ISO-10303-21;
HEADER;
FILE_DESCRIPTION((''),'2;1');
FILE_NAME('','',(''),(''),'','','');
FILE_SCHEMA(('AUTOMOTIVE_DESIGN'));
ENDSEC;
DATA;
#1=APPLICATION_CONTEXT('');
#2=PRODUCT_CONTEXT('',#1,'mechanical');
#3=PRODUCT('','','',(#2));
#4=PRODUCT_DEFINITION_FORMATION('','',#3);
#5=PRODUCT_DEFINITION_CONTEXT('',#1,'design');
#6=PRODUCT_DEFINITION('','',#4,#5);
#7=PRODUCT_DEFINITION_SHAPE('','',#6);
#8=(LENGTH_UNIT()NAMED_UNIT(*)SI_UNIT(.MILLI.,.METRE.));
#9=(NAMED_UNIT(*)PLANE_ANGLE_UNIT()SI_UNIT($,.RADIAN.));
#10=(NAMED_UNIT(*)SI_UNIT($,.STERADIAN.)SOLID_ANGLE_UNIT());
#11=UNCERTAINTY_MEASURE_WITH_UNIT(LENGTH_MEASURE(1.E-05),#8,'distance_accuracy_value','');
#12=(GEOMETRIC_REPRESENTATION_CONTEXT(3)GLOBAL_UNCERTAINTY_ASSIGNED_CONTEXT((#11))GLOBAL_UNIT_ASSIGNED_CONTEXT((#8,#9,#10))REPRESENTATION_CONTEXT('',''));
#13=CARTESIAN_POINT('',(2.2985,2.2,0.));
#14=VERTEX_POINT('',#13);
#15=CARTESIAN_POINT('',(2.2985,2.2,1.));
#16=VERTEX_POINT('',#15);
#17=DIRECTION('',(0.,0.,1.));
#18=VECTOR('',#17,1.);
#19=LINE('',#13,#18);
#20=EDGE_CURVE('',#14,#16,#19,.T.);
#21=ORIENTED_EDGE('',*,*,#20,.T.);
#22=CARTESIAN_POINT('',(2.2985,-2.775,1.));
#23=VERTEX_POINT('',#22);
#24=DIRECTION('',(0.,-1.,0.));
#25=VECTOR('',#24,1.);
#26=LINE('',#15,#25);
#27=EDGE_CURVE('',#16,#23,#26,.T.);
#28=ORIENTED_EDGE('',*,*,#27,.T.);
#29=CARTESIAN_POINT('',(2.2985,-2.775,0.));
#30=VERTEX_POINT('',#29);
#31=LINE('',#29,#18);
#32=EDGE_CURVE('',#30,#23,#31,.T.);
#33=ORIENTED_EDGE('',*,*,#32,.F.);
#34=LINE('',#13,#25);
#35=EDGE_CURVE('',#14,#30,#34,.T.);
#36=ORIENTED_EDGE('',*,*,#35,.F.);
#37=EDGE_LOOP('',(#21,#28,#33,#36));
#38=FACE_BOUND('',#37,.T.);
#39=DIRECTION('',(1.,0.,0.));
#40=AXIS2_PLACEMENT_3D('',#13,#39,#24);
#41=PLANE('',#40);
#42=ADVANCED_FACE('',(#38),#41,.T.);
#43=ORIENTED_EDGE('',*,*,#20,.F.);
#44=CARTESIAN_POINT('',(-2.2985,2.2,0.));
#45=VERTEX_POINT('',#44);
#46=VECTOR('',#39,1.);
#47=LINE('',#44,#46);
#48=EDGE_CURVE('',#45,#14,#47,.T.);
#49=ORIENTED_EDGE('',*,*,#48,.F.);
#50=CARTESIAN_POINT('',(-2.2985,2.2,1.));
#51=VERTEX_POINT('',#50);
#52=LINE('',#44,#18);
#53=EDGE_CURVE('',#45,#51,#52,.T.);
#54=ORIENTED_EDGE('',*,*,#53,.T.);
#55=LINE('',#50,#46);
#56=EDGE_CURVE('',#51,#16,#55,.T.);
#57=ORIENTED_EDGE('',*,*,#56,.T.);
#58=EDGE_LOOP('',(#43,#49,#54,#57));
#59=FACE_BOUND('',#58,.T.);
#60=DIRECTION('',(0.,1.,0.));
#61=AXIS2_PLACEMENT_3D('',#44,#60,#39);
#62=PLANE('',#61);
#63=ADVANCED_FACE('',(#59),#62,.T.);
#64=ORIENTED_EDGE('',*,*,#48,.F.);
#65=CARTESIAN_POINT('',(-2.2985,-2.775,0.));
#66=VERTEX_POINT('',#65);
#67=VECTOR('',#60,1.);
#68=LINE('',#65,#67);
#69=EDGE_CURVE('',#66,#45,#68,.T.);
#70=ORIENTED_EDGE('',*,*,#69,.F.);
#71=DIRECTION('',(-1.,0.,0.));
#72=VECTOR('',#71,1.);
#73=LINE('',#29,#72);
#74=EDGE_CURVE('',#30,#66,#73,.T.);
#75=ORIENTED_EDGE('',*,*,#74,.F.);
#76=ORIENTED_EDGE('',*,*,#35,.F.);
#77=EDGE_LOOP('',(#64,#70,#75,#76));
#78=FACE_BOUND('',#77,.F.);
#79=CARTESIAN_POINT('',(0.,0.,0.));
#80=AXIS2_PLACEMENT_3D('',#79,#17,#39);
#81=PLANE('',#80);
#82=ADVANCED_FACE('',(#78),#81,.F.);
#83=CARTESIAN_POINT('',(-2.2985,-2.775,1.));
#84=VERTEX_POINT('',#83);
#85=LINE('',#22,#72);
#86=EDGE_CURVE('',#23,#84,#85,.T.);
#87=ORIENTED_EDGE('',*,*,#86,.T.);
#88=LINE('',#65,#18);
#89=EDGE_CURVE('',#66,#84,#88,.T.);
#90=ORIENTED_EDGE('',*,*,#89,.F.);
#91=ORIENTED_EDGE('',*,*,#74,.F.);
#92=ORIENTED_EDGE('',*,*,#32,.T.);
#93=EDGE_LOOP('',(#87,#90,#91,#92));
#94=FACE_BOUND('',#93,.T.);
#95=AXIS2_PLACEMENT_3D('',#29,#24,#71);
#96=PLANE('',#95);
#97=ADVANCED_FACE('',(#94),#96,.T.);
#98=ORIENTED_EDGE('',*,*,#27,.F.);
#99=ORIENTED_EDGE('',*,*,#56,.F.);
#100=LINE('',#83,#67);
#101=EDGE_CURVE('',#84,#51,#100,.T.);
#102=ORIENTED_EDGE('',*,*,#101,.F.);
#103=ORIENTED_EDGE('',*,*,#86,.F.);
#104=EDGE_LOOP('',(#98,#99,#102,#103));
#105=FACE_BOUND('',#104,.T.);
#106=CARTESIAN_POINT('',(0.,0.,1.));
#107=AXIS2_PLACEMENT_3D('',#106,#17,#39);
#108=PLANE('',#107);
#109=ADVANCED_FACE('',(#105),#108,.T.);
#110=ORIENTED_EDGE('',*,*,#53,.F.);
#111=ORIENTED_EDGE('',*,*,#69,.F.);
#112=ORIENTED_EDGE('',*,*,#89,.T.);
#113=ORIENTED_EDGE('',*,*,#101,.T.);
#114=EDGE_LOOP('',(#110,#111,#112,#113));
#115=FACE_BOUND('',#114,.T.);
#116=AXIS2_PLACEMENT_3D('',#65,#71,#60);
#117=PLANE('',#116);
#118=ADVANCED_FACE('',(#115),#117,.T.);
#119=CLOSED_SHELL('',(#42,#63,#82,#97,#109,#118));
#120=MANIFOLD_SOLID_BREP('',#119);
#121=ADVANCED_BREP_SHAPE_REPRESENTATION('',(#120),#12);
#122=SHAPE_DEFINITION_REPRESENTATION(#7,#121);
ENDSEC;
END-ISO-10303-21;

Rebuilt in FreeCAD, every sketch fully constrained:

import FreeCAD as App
import Part
import Sketcher
from FreeCAD import Vector
Q = App.Units.Quantity

doc = App.newDocument("Part")
params = doc.addObject("Spreadsheet::Sheet", "Params")
for row, (alias, value) in enumerate([
    ("pad1_length", "1 mm"),
], start=1):
    params.set(f"A{row}", alias)
    params.set(f"B{row}", "=" + value)
    params.setAlias(f"B{row}", alias)

body = doc.addObject("PartDesign::Body", "Body")

sketch1 = body.newObject("Sketcher::SketchObject", "Sketch")
sketch1.AttachmentSupport = (doc.getObject("XY_Plane"), [""])
sketch1.MapMode = "FlatFace"
sketch1.addGeometry(Part.LineSegment(Vector(2.2985, 2.2, 0), Vector(-2.2985, 2.2, 0)), False)
sketch1.addGeometry(Part.LineSegment(Vector(-2.2985, 2.2, 0), Vector(-2.2985, -2.775, 0)), False)
sketch1.addGeometry(Part.LineSegment(Vector(-2.2985, -2.775, 0), Vector(2.2985, -2.775, 0)), False)
sketch1.addGeometry(Part.LineSegment(Vector(2.2985, -2.775, 0), Vector(2.2985, 2.2, 0)), False)
sketch1.addConstraint(Sketcher.Constraint("Coincident", 0, 2, 1, 1))
sketch1.addConstraint(Sketcher.Constraint("Coincident", 1, 2, 2, 1))
sketch1.addConstraint(Sketcher.Constraint("Coincident", 2, 2, 3, 1))
sketch1.addConstraint(Sketcher.Constraint("Coincident", 3, 2, 0, 1))
sketch1.addConstraint(Sketcher.Constraint("Horizontal", 0))
sketch1.addConstraint(Sketcher.Constraint("Vertical", 1))
sketch1.addConstraint(Sketcher.Constraint("Horizontal", 2))
sketch1.addConstraint(Sketcher.Constraint("Vertical", 3))
sketch1.addConstraint(Sketcher.Constraint("DistanceY", -1, 1, 0, 2, Q("2.2 mm")))
sketch1.addConstraint(Sketcher.Constraint("DistanceX", 0, 2, 0, 1, Q("4.597 mm")))
sketch1.addConstraint(Sketcher.Constraint("DistanceY", 1, 2, 1, 1, Q("4.975 mm")))
sketch1.addConstraint(Sketcher.Constraint("DistanceX", 0, 2, -1, 1, Q("2.2985 mm")))
pad1 = body.newObject("PartDesign::Pad", "Pad")
pad1.Profile = sketch1
pad1.setExpression("Length", "Params.pad1_length")

doc.recompute()
